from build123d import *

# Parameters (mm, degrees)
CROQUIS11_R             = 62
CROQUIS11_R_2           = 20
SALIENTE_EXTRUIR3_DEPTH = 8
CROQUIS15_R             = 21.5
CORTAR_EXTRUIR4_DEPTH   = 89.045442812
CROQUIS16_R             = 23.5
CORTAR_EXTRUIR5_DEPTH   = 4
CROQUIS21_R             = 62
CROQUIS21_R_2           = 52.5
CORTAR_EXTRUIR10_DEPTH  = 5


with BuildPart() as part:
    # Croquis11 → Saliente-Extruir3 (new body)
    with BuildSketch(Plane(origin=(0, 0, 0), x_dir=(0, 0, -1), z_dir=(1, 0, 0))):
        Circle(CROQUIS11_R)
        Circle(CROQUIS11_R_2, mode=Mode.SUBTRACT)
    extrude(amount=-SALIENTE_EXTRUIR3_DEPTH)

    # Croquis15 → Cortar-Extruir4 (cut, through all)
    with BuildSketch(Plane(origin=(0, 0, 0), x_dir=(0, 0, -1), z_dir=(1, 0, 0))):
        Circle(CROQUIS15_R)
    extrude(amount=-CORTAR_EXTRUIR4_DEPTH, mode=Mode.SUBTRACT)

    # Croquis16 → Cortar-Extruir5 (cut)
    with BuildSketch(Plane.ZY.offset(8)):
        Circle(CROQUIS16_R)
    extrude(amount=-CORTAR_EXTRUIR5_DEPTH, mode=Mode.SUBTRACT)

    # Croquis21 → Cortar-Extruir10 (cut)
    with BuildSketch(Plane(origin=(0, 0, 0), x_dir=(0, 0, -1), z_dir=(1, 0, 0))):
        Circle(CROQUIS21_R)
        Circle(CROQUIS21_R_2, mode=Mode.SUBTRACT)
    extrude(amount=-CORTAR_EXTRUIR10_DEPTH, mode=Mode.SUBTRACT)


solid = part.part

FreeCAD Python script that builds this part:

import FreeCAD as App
import Part
import Sketcher

V = App.Vector

doc = App.newDocument("Part")
params = doc.addObject("Spreadsheet::Sheet", "Params")
for row, (alias, value) in enumerate([
    ("sketch1_diameter", "124 mm"),
    ("sketch1_diameter2", "40 mm"),
    ("pad1_length", "8 mm"),
    ("sketch2_diameter", "43 mm"),
    ("sketch3_diameter", "47 mm"),
    ("pocket2_length", "4 mm"),
    ("sketch4_diameter", "124 mm"),
    ("sketch4_diameter2", "105 mm"),
    ("pocket3_length", "5 mm"),
], start=1):
    params.set(f"A{row}", alias)
    params.set(f"B{row}", "=" + value)
    params.setAlias(f"B{row}", alias)

body = doc.addObject("PartDesign::Body", "Body")

# Sketch on YZ plane
sketch1 = doc.addObject("Sketcher::SketchObject", "Sketch")
body.addObject(sketch1)
sketch1.AttachmentSupport = (doc.YZ_Plane, [""])
sketch1.MapMode = "FlatFace"
sketch1.addGeometry(Part.Circle(V(0, 0, 0), V(0, 0, 1), 62), False)
sketch1.addGeometry(Part.Circle(V(0, 0, 0), V(0, 0, 1), 20), False)
sketch1.addConstraint(Sketcher.Constraint("Coincident", 0, 3, -1, 1))
sketch1.addConstraint(Sketcher.Constraint("Coincident", 1, 3, -1, 1))
sketch1.addConstraint(Sketcher.Constraint("Diameter", 0, 124.0))
sketch1.addConstraint(Sketcher.Constraint("Diameter", 1, 40.0))
sketch1.setExpression("Constraints[2]", "Params.sketch1_diameter")
sketch1.setExpression("Constraints[3]", "Params.sketch1_diameter2")
pad1 = doc.addObject("PartDesign::Pad", "Pad")
body.addObject(pad1)
pad1.Profile = sketch1
pad1.setExpression("Length", "Params.pad1_length")
pad1.Reversed = True

# Sketch on YZ plane
sketch2 = doc.addObject("Sketcher::SketchObject", "Sketch001")
body.addObject(sketch2)
sketch2.AttachmentSupport = (doc.YZ_Plane, [""])
sketch2.MapMode = "FlatFace"
sketch2.addGeometry(Part.Circle(V(0, 0, 0), V(0, 0, 1), 21.5), False)
sketch2.addConstraint(Sketcher.Constraint("Coincident", 0, 3, -1, 1))
sketch2.addConstraint(Sketcher.Constraint("Diameter", 0, 43.0))
sketch2.setExpression("Constraints[1]", "Params.sketch2_diameter")
pocket1 = doc.addObject("PartDesign::Pocket", "Pocket")
body.addObject(pocket1)
pocket1.Profile = sketch2
pocket1.Type = "ThroughAll"

# Sketch on YZ plane
sketch3 = doc.addObject("Sketcher::SketchObject", "Sketch002")
body.addObject(sketch3)
sketch3.AttachmentSupport = (doc.YZ_Plane, [""])
sketch3.MapMode = "FlatFace"
sketch3.AttachmentOffset = App.Placement(V(0, 0, -8), App.Rotation())
sketch3.addGeometry(Part.Circle(V(0, 0, 0), V(0, 0, 1), 23.5), False)
sketch3.addConstraint(Sketcher.Constraint("Coincident", 0, 3, -1, 1))
sketch3.addConstraint(Sketcher.Constraint("Diameter", 0, 47.0))
sketch3.setExpression("Constraints[1]", "Params.sketch3_diameter")
pocket2 = doc.addObject("PartDesign::Pocket", "Pocket001")
body.addObject(pocket2)
pocket2.Profile = sketch3
pocket2.setExpression("Length", "Params.pocket2_length")
pocket2.Reversed = True

# Sketch on YZ plane
sketch4 = doc.addObject("Sketcher::SketchObject", "Sketch003")
body.addObject(sketch4)
sketch4.AttachmentSupport = (doc.YZ_Plane, [""])
sketch4.MapMode = "FlatFace"
sketch4.addGeometry(Part.Circle(V(0, 0, 0), V(0, 0, 1), 62), False)
sketch4.addGeometry(Part.Circle(V(0, 0, 0), V(0, 0, 1), 52.5), False)
sketch4.addConstraint(Sketcher.Constraint("Coincident", 0, 3, -1, 1))
sketch4.addConstraint(Sketcher.Constraint("Coincident", 1, 3, -1, 1))
sketch4.addConstraint(Sketcher.Constraint("Diameter", 0, 124.0))
sketch4.addConstraint(Sketcher.Constraint("Diameter", 1, 105.0))
sketch4.setExpression("Constraints[2]", "Params.sketch4_diameter")
sketch4.setExpression("Constraints[3]", "Params.sketch4_diameter2")
pocket3 = doc.addObject("PartDesign::Pocket", "Pocket002")
body.addObject(pocket3)
pocket3.Profile = sketch4
pocket3.setExpression("Length", "Params.pocket3_length")

doc.recompute()
